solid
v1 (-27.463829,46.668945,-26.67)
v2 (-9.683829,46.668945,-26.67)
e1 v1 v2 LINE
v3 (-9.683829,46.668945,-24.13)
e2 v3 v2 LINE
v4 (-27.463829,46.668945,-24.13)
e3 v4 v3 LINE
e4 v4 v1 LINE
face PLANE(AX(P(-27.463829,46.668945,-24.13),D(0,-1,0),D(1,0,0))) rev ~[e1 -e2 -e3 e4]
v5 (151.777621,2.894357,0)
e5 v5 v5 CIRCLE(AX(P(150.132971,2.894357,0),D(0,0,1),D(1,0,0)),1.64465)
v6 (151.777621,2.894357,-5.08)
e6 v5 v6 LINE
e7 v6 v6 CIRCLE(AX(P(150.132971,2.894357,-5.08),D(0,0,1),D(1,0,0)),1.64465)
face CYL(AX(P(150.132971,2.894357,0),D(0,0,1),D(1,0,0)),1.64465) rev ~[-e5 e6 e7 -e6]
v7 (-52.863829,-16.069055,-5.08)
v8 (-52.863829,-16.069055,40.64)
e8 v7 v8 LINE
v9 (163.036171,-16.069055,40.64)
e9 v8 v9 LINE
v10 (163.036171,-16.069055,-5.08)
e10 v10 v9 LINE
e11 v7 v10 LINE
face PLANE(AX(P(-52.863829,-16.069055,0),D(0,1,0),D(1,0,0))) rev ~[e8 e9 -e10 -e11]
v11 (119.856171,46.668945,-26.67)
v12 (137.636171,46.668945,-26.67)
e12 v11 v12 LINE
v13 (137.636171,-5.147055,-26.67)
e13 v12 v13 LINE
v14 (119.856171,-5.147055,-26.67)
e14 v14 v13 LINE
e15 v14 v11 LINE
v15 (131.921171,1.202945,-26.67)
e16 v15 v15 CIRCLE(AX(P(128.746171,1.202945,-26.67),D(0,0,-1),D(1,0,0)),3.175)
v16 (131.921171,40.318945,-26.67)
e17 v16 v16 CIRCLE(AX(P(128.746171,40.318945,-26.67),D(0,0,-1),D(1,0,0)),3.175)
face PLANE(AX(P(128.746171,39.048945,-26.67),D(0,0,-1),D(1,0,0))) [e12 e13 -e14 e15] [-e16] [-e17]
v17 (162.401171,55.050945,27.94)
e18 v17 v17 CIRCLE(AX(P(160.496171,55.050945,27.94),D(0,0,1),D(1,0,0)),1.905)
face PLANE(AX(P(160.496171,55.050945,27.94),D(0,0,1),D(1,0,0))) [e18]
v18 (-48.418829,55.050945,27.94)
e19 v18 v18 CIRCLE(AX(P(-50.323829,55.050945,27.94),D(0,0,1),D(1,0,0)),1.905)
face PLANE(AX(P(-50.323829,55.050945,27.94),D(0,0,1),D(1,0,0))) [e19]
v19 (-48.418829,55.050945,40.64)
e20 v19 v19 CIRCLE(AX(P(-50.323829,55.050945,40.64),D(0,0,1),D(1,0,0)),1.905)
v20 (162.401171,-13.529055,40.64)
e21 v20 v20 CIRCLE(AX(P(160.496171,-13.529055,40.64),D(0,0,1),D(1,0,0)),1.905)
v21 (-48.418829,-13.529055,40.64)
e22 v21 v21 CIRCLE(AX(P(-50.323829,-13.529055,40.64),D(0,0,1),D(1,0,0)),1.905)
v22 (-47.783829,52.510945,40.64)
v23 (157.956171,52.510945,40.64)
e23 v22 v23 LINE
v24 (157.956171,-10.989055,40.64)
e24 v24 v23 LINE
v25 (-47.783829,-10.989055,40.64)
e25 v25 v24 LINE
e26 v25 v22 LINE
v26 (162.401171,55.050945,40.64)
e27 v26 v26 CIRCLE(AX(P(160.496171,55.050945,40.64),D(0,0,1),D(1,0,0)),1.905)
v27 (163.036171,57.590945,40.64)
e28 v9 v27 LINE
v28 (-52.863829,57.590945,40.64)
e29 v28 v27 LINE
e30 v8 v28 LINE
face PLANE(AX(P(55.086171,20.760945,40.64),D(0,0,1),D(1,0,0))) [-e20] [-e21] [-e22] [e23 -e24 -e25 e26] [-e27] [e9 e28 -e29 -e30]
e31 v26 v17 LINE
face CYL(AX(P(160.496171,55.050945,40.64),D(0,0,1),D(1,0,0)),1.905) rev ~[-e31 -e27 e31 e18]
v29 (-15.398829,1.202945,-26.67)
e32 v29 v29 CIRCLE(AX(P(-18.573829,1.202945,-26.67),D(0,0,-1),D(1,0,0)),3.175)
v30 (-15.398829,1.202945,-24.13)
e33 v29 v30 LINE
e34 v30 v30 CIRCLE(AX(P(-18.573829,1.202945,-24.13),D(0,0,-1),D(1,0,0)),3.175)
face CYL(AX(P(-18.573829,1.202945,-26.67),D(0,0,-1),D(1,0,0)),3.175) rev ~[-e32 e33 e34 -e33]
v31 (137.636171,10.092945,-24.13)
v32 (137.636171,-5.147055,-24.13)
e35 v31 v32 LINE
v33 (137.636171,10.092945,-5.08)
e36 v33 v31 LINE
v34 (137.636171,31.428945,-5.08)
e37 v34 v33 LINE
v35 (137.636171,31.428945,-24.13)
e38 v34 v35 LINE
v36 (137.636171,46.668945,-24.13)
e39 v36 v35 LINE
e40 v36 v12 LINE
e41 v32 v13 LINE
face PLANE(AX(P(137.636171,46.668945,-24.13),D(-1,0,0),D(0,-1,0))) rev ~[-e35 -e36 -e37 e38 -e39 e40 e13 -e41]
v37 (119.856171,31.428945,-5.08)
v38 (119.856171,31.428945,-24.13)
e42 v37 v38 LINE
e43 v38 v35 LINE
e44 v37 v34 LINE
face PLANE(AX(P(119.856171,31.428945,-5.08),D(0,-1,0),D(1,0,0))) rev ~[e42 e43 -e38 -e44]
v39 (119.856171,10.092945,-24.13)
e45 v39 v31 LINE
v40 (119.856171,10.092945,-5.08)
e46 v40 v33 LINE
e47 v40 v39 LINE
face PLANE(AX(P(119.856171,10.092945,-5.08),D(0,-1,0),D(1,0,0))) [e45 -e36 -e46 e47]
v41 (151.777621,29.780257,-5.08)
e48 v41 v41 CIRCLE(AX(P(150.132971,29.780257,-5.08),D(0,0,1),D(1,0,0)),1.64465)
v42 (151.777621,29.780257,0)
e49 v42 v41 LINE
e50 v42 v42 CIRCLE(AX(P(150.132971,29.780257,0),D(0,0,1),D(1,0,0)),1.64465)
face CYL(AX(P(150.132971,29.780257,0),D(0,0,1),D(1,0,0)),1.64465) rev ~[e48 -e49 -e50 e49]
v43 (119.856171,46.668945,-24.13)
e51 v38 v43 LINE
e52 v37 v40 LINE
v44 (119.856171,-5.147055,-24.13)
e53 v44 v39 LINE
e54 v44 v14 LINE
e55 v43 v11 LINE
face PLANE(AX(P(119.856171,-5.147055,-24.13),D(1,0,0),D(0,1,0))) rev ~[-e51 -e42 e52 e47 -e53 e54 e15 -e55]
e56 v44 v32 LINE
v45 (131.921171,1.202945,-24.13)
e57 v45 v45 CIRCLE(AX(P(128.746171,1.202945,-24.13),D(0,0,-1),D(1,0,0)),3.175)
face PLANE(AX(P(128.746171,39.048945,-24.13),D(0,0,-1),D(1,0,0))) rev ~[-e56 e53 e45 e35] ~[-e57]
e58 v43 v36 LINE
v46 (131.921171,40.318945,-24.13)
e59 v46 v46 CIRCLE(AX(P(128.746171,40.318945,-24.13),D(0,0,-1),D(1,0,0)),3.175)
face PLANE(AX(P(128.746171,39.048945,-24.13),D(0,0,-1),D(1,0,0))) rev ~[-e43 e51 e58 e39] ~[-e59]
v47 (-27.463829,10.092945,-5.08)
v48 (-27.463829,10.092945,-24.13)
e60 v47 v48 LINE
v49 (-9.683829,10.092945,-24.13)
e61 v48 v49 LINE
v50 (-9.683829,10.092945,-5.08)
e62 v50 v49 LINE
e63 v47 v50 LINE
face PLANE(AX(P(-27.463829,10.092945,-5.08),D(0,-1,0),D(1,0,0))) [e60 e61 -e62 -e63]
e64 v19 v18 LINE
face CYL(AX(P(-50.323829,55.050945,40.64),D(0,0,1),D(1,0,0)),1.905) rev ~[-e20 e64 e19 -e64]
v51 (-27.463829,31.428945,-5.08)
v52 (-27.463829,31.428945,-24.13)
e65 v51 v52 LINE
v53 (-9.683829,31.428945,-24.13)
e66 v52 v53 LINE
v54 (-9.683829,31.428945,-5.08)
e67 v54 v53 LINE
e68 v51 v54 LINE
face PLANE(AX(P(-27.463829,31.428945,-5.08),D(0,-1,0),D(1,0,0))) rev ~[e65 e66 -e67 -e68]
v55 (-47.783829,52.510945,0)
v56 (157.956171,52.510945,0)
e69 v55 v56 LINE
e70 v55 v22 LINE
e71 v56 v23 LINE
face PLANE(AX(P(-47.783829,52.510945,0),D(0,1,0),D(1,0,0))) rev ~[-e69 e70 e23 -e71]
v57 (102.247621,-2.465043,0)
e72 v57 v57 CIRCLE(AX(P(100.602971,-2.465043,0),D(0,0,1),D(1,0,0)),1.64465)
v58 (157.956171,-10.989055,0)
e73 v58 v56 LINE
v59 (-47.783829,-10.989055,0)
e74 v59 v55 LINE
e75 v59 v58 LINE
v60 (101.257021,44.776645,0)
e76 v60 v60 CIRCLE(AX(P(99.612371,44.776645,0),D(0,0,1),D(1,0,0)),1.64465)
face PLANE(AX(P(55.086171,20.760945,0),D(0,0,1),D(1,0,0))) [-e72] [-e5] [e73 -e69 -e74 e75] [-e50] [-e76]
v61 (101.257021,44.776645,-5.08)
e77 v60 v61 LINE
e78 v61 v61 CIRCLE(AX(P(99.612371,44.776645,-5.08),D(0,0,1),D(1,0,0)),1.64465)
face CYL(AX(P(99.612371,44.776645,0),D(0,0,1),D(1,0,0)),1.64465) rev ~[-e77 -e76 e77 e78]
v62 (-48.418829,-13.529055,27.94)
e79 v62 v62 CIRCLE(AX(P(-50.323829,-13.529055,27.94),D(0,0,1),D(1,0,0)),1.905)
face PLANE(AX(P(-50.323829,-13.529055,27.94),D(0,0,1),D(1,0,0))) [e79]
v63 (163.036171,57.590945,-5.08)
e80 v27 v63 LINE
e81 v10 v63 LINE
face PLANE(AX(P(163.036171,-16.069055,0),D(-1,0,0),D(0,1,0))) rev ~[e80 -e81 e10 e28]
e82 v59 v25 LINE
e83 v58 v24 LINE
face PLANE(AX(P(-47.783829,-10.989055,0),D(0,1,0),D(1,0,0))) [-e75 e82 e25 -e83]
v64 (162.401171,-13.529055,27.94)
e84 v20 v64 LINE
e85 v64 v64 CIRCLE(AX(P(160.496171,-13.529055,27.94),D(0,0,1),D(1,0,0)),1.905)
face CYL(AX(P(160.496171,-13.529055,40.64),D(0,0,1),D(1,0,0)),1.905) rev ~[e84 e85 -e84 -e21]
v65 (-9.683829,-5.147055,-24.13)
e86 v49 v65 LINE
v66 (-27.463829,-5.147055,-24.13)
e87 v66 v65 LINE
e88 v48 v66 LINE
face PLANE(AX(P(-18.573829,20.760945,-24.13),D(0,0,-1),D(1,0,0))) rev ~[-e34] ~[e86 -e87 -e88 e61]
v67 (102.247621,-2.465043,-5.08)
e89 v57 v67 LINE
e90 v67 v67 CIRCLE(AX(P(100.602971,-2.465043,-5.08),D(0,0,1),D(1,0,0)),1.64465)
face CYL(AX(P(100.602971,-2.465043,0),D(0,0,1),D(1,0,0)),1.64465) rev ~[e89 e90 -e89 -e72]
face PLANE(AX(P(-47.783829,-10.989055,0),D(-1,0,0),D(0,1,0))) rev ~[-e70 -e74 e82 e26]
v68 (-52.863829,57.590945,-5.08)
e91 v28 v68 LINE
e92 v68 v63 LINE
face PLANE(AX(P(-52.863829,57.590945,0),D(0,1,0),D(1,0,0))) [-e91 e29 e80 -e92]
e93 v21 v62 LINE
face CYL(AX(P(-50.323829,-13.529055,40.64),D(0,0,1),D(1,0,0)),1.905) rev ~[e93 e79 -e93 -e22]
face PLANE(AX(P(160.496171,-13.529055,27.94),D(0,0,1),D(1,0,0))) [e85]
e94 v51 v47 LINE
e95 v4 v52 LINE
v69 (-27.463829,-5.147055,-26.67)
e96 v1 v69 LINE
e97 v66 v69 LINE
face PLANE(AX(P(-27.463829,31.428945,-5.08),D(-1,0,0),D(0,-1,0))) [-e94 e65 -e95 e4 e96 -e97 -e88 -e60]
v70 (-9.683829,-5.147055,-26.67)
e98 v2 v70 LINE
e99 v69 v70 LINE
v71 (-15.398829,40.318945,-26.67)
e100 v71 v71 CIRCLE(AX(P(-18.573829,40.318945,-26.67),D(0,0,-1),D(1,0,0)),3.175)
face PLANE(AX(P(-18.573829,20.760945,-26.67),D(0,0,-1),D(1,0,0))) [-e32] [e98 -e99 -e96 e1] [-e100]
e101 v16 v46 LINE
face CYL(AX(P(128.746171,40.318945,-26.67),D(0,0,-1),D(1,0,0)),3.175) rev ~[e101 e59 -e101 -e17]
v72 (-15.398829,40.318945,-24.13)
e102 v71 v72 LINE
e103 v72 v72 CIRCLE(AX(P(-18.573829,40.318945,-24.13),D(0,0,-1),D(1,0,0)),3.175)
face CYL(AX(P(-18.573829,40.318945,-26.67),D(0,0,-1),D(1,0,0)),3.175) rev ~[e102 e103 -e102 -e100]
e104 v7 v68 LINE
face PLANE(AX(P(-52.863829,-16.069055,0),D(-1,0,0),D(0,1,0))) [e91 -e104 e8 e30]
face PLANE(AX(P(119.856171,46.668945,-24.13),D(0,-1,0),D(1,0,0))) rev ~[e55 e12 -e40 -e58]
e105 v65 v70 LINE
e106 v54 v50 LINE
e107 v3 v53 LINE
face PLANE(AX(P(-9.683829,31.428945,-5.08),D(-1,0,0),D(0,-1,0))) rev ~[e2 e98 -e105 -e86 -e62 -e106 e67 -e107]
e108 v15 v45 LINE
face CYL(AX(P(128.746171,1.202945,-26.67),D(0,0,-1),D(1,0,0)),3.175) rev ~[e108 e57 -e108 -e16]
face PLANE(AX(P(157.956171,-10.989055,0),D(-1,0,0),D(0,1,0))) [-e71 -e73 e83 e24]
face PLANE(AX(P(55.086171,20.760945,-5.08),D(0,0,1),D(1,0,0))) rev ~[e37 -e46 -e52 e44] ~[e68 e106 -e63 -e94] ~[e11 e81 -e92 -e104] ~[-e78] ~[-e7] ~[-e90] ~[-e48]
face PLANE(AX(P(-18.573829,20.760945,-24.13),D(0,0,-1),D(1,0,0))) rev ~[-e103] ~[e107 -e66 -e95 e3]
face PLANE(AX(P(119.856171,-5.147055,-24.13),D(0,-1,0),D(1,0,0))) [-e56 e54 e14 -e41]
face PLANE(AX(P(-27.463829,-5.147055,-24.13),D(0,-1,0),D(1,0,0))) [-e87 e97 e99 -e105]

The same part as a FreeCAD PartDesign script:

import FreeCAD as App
import Part
import Sketcher

V = App.Vector
Q = App.Units.Quantity

doc = App.newDocument("Part")
body = doc.addObject("PartDesign::Body", "Body")

# Sketch on XY plane
sketch1 = body.newObject("Sketcher::SketchObject", "Sketch")
sketch1.AttachmentSupport = (doc.getObject("XY_Plane"), [""])
sketch1.MapMode = "FlatFace"
sketch1.addGeometry([
    Part.LineSegment(V(-52.863829, 57.590945, 0), V(-52.863829, -16.069055, 0)),
    Part.LineSegment(V(-52.863829, -16.069055, 0), V(163.036171, -16.069055, 0)),
    Part.LineSegment(V(163.036171, -16.069055, 0), V(163.036171, 57.590945, 0)),
    Part.LineSegment(V(163.036171, 57.590945, 0), V(-52.863829, 57.590945, 0)),
], False)
sketch1.addConstraint([
    Sketcher.Constraint("Coincident", 0, 2, 1, 1),
    Sketcher.Constraint("Coincident", 1, 2, 2, 1),
    Sketcher.Constraint("Coincident", 2, 2, 3, 1),
    Sketcher.Constraint("Coincident", 3, 2, 0, 1),
    Sketcher.Constraint("Vertical", 0),
    Sketcher.Constraint("Horizontal", 1),
    Sketcher.Constraint("Vertical", 2),
    Sketcher.Constraint("Horizontal", 3),
    Sketcher.Constraint("DistanceX", 1, 1, 1, 2, Q("8.5 in")),
    Sketcher.Constraint("DistanceY", 0, 2, 0, 1, Q("2.9 in")),
    Sketcher.Constraint("DistanceX", 0, 2, -1, 1, Q("52.863829 mm")),
    Sketcher.Constraint("DistanceY", 0, 2, -1, 1, Q("16.069055 mm")),
])
pad1 = body.newObject("PartDesign::Pad", "Pad")
pad1.Profile = sketch1
pad1.Length = Q("0.2 in")
pad1.Reversed = True

# Sketch on XY plane
sketch2 = body.newObject("Sketcher::SketchObject", "Sketch001")
sketch2.AttachmentSupport = (doc.getObject("XY_Plane"), [""])
sketch2.MapMode = "FlatFace"
sketch2.addGeometry([
    Part.LineSegment(V(-52.863829, 57.590945, 0), V(-52.863829, -16.069055, 0)),  # 0
    Part.LineSegment(V(-52.863829, -16.069055, 0), V(163.036171, -16.069055, 0)),  # 1
    Part.LineSegment(V(163.036171, -16.069055, 0), V(163.036171, 57.590945, 0)),  # 2
    Part.LineSegment(V(163.036171, 57.590945, 0), V(-52.863829, 57.590945, 0)),  # 3
    Part.LineSegment(V(157.956171, -10.989055, 0), V(-47.783829, -10.989055, 0)),  # 4
    Part.LineSegment(V(-47.783829, -10.989055, 0), V(-47.783829, 52.510945, 0)),  # 5
    Part.LineSegment(V(-47.783829, 52.510945, 0), V(157.956171, 52.510945, 0)),  # 6
    Part.LineSegment(V(157.956171, 52.510945, 0), V(157.956171, -10.989055, 0)),  # 7
], False)
sketch2.addConstraint([
    Sketcher.Constraint("Coincident", 0, 2, 1, 1),
    Sketcher.Constraint("Coincident", 1, 2, 2, 1),
    Sketcher.Constraint("Coincident", 2, 2, 3, 1),
    Sketcher.Constraint("Coincident", 3, 2, 0, 1),
    Sketcher.Constraint("Coincident", 4, 2, 5, 1),
    Sketcher.Constraint("Coincident", 5, 2, 6, 1),
    Sketcher.Constraint("Coincident", 6, 2, 7, 1),
    Sketcher.Constraint("Coincident", 7, 2, 4, 1),
    Sketcher.Constraint("Vertical", 0),
    Sketcher.Constraint("Horizontal", 1),
    Sketcher.Constraint("Vertical", 2),
    Sketcher.Constraint("Horizontal", 3),
    Sketcher.Constraint("Horizontal", 4),
    Sketcher.Constraint("Vertical", 5),
    Sketcher.Constraint("Horizontal", 6),
    Sketcher.Constraint("Vertical", 7),
    Sketcher.Constraint("DistanceX", 1, 1, 1, 2, Q("8.5 in")),
    Sketcher.Constraint("DistanceX", 4, 2, 4, 1, Q("8.1 in")),
    Sketcher.Constraint("DistanceY", 0, 2, 0, 1, Q("2.9 in")),
    Sketcher.Constraint("DistanceY", 5, 1, 5, 2, Q("2.5 in")),
    Sketcher.Constraint("DistanceX", 0, 2, 4, 2, Q("0.2 in")),
    Sketcher.Constraint("DistanceY", 0, 2, 4, 2, Q("0.2 in")),
    Sketcher.Constraint("DistanceX", 0, 2, -1, 1, Q("52.863829 mm")),
    Sketcher.Constraint("DistanceY", 0, 2, -1, 1, Q("16.069055 mm")),
])
pad2 = body.newObject("PartDesign::Pad", "Pad001")
pad2.Profile = sketch2
pad2.Length = Q("1.6 in")

# Sketch on XY plane
sketch3 = body.newObject("Sketcher::SketchObject", "Sketch002")
sketch3.AttachmentSupport = (doc.getObject("XY_Plane"), [""])
sketch3.MapMode = "FlatFace"
sketch3.addGeometry([
    Part.Circle(V(150.132971, 29.780257, 0), V(0, 0, 1), 1.64465),
    Part.Circle(V(150.132971, 2.894357, 0), V(0, 0, 1), 1.64465),
    Part.Circle(V(100.602971, -2.465043, 0), V(0, 0, 1), 1.64465),
    Part.Circle(V(99.612371, 44.776645, 0), V(0, 0, 1), 1.64465),
], False)
sketch3.addConstraint([
    Sketcher.Constraint("Equal", 0, 1),
    Sketcher.Constraint("Equal", 1, 2),
    Sketcher.Constraint("Equal", 2, 3),
    Sketcher.Constraint("Vertical", 0, 3, 1, 3),
    Sketcher.Constraint("Diameter", 0, Q("0.1295 in")),
    Sketcher.Constraint("DistanceX", 2, 3, 1, 3, Q("1.95 in")),
    Sketcher.Constraint("DistanceY", 2, 3, 1, 3, Q("0.211 in")),
    Sketcher.Constraint("DistanceX", 3, 3, 2, 3, Q("0.039 in")),
    Sketcher.Constraint("DistanceY", 1, 3, 0, 3, Q("1.0585 in")),
    Sketcher.Constraint("DistanceX", -1, 1, 0, 3, Q("150.132971 mm")),
    Sketcher.Constraint("DistanceY", 2, 3, 3, 3, Q("47.241689 mm")),
    Sketcher.Constraint("DistanceY", -1, 1, 0, 3, Q("29.780257 mm")),
])
pocket1 = body.newObject("PartDesign::Pocket", "Pocket")
pocket1.Profile = sketch3
pocket1.Type = "ThroughAll"

# Sketch on XY plane
sketch4 = body.newObject("Sketcher::SketchObject", "Sketch003")
sketch4.AttachmentSupport = (doc.getObject("XY_Plane"), [""])
sketch4.MapMode = "FlatFace"
sketch4.AttachmentOffset = App.Placement(V(0, 0, 1.6 * 25.4), App.Rotation())
sketch4.addGeometry([
    Part.Circle(V(160.496171, -13.529055, 0), V(0, 0, 1), 1.905),
    Part.Circle(V(160.496171, 55.050945, 0), V(0, 0, 1), 1.905),
    Part.Circle(V(-50.323829, 55.050945, 0), V(0, 0, 1), 1.905),
    Part.Circle(V(-50.323829, -13.529055, 0), V(0, 0, 1), 1.905),
], False)
sketch4.addConstraint([
    Sketcher.Constraint("Equal", 0, 1),
    Sketcher.Constraint("Equal", 1, 2),
    Sketcher.Constraint("Equal", 2, 3),
    Sketcher.Constraint("Horizontal", 1, 3, 2, 3),
    Sketcher.Constraint("Horizontal", 0, 3, 3, 3),
    Sketcher.Constraint("Vertical", 0, 3, 1, 3),
    Sketcher.Constraint("Vertical", 2, 3, 3, 3),
    Sketcher.Constraint("Diameter", 0, Q("0.15 in")),
    Sketcher.Constraint("DistanceY", 0, 3, 1, 3, Q("2.7 in")),
    Sketcher.Constraint("DistanceX", 2, 3, 1, 3, Q("8.3 in")),
    Sketcher.Constraint("DistanceX", -1, 1, 0, 3, Q("160.496171 mm")),
    Sketcher.Constraint("DistanceY", 0, 3, -1, 1, Q("13.529055 mm")),
])
pocket2 = body.newObject("PartDesign::Pocket", "Pocket001")
pocket2.Profile = sketch4
pocket2.Length = Q("0.5 in")

# Sketch on XY plane
sketch5 = body.newObject("Sketcher::SketchObject", "Sketch004")
sketch5.AttachmentSupport = (doc.getObject("XY_Plane"), [""])
sketch5.MapMode = "FlatFace"
sketch5.AttachmentOffset = App.Placement(V(0, 0, -0.2 * 25.4), App.Rotation())
sketch5.addGeometry([
    Part.LineSegment(V(119.856171, 10.092945, 0), V(119.856171, 31.428945, 0)),  # 0
    Part.LineSegment(V(119.856171, 31.428945, 0), V(137.636171, 31.428945, 0)),  # 1
    Part.LineSegment(V(137.636171, 31.428945, 0), V(137.636171, 10.092945, 0)),  # 2
    Part.LineSegment(V(137.636171, 10.092945, 0), V(119.856171, 10.092945, 0)),  # 3
    Part.LineSegment(V(-27.463829, 10.092945, 0), V(-27.463829, 31.428945, 0)),  # 4
    Part.LineSegment(V(-27.463829, 31.428945, 0), V(-9.683829, 31.428945, 0)),  # 5
    Part.LineSegment(V(-9.683829, 31.428945, 0), V(-9.683829, 10.092945, 0)),  # 6
    Part.LineSegment(V(-9.683829, 10.092945, 0), V(-27.463829, 10.092945, 0)),  # 7
], False)
sketch5.addConstraint([
    Sketcher.Constraint("Coincident", 0, 2, 1, 1),
    Sketcher.Constraint("Coincident", 1, 2, 2, 1),
    Sketcher.Constraint("Coincident", 2, 2, 3, 1),
    Sketcher.Constraint("Coincident", 3, 2, 0, 1),
    Sketcher.Constraint("Coincident", 4, 2, 5, 1),
    Sketcher.Constraint("Coincident", 5, 2, 6, 1),
    Sketcher.Constraint("Coincident", 6, 2, 7, 1),
    Sketcher.Constraint("Coincident", 7, 2, 4, 1),
    Sketcher.Constraint("Vertical", 0),
    Sketcher.Constraint("Horizontal", 1),
    Sketcher.Constraint("Vertical", 2),
    Sketcher.Constraint("Horizontal", 3),
    Sketcher.Constraint("Vertical", 4),
    Sketcher.Constraint("Horizontal", 5),
    Sketcher.Constraint("Vertical", 6),
    Sketcher.Constraint("Horizontal", 7),
    Sketcher.Constraint("Horizontal", 1, 2, 4, 2),
    Sketcher.Constraint("Horizontal", 3, 2, 6, 2),
    Sketcher.Constraint("Equal", 3, 5),
    Sketcher.Constraint("DistanceX", 1, 1, 1, 2, Q("0.7 in")),
    Sketcher.Constraint("DistanceY", 0, 1, 0, 2, Q("0.84 in")),
    Sketcher.Constraint("DistanceX", 4, 2, 0, 2, Q("5.8 in")),
    Sketcher.Constraint("DistanceX", -1, 1, 0, 2, Q("119.856171 mm")),
    Sketcher.Constraint("DistanceY", -1, 1, 0, 2, Q("31.428945 mm")),
])
pad3 = body.newObject("PartDesign::Pad", "Pad002")
pad3.Profile = sketch5
pad3.Length = Q("0.75 in")
pad3.Reversed = True

# Sketch on XY plane
sketch6 = body.newObject("Sketcher::SketchObject", "Sketch005")
sketch6.AttachmentSupport = (doc.getObject("XY_Plane"), [""])
sketch6.MapMode = "FlatFace"
sketch6.AttachmentOffset = App.Placement(V(0, 0, -0.95 * 25.4), App.Rotation())
sketch6.addGeometry([
    Part.LineSegment(V(119.856171, 46.668945, 0), V(137.636171, 46.668945, 0)),  # 0
    Part.LineSegment(V(137.636171, 46.668945, 0), V(137.636171, -5.147055, 0)),  # 1
    Part.LineSegment(V(137.636171, -5.147055, 0), V(119.856171, -5.147055, 0)),  # 2
    Part.LineSegment(V(119.856171, -5.147055, 0), V(119.856171, 46.668945, 0)),  # 3
    Part.LineSegment(V(-27.463829, -5.147055, 0), V(-27.463829, 46.668945, 0)),  # 4
    Part.LineSegment(V(-27.463829, 46.668945, 0), V(-9.683829, 46.668945, 0)),  # 5
    Part.LineSegment(V(-9.683829, 46.668945, 0), V(-9.683829, -5.147055, 0)),  # 6
    Part.LineSegment(V(-9.683829, -5.147055, 0), V(-27.463829, -5.147055, 0)),  # 7
], False)
sketch6.addConstraint([
    Sketcher.Constraint("Coincident", 0, 2, 1, 1),
    Sketcher.Constraint("Coincident", 1, 2, 2, 1),
    Sketcher.Constraint("Coincident", 2, 2, 3, 1),
    Sketcher.Constraint("Coincident", 3, 2, 0, 1),
    Sketcher.Constraint("Coincident", 4, 2, 5, 1),
    Sketcher.Constraint("Coincident", 5, 2, 6, 1),
    Sketcher.Constraint("Coincident", 6, 2, 7, 1),
    Sketcher.Constraint("Coincident", 7, 2, 4, 1),
    Sketcher.Constraint("Horizontal", 0),
    Sketcher.Constraint("Vertical", 1),
    Sketcher.Constraint("Horizontal", 2),
    Sketcher.Constraint("Vertical", 3),
    Sketcher.Constraint("Vertical", 4),
    Sketcher.Constraint("Horizontal", 5),
    Sketcher.Constraint("Vertical", 6),
    Sketcher.Constraint("Horizontal", 7),
    Sketcher.Constraint("Horizontal", 3, 2, 4, 2),
    Sketcher.Constraint("Horizontal", 2, 2, 6, 2),
    Sketcher.Constraint("Equal", 2, 5),
    Sketcher.Constraint("DistanceX", 0, 1, 0, 2, Q("0.7 in")),
    Sketcher.Constraint("DistanceY", 1, 2, 1, 1, Q("2.04 in")),
    Sketcher.Constraint("DistanceX", 4, 2, 3, 2, Q("5.8 in")),
    Sketcher.Constraint("DistanceX", -1, 1, 0, 2, Q("137.636171 mm")),
    Sketcher.Constraint("DistanceY", -1, 1, 0, 2, Q("46.668945 mm")),
])
pad4 = body.newObject("PartDesign::Pad", "Pad003")
pad4.Profile = sketch6
pad4.Length = Q("0.1 in")
pad4.Reversed = True

# Sketch on XY plane
sketch7 = body.newObject("Sketcher::SketchObject", "Sketch006")
sketch7.AttachmentSupport = (doc.getObject("XY_Plane"), [""])
sketch7.MapMode = "FlatFace"
sketch7.AttachmentOffset = App.Placement(V(0, 0, -1.05 * 25.4), App.Rotation())
sketch7.addGeometry([
    Part.Circle(V(-18.573829, 1.202945, 0), V(0, 0, 1), 3.175),
    Part.Circle(V(-18.573829, 40.318945, 0), V(0, 0, 1), 3.175),
    Part.Circle(V(128.746171, 40.318945, 0), V(0, 0, 1), 3.175),
    Part.Circle(V(128.746171, 1.202945, 0), V(0, 0, 1), 3.175),
], False)
sketch7.addConstraint([
    Sketcher.Constraint("Equal", 0, 1),
    Sketcher.Constraint("Equal", 1, 2),
    Sketcher.Constraint("Equal", 2, 3),
    Sketcher.Constraint("Horizontal", 1, 3, 2, 3),
    Sketcher.Constraint("Horizontal", 0, 3, 3, 3),
    Sketcher.Constraint("Vertical", 0, 3, 1, 3),
    Sketcher.Constraint("Vertical", 2, 3, 3, 3),
    Sketcher.Constraint("Diameter", 0, Q("0.25 in")),
    Sketcher.Constraint("DistanceX", 1, 3, 2, 3, Q("5.8 in")),
    Sketcher.Constraint("DistanceY", 0, 3, 1, 3, Q("1.54 in")),
    Sketcher.Constraint("DistanceX", 0, 3, -1, 1, Q("18.573829 mm")),
    Sketcher.Constraint("DistanceY", -1, 1, 0, 3, Q("1.202945 mm")),
])
pocket3 = body.newObject("PartDesign::Pocket", "Pocket002")
pocket3.Profile = sketch7
pocket3.Length = Q("0.1 in")
pocket3.Reversed = True

doc.recompute()
